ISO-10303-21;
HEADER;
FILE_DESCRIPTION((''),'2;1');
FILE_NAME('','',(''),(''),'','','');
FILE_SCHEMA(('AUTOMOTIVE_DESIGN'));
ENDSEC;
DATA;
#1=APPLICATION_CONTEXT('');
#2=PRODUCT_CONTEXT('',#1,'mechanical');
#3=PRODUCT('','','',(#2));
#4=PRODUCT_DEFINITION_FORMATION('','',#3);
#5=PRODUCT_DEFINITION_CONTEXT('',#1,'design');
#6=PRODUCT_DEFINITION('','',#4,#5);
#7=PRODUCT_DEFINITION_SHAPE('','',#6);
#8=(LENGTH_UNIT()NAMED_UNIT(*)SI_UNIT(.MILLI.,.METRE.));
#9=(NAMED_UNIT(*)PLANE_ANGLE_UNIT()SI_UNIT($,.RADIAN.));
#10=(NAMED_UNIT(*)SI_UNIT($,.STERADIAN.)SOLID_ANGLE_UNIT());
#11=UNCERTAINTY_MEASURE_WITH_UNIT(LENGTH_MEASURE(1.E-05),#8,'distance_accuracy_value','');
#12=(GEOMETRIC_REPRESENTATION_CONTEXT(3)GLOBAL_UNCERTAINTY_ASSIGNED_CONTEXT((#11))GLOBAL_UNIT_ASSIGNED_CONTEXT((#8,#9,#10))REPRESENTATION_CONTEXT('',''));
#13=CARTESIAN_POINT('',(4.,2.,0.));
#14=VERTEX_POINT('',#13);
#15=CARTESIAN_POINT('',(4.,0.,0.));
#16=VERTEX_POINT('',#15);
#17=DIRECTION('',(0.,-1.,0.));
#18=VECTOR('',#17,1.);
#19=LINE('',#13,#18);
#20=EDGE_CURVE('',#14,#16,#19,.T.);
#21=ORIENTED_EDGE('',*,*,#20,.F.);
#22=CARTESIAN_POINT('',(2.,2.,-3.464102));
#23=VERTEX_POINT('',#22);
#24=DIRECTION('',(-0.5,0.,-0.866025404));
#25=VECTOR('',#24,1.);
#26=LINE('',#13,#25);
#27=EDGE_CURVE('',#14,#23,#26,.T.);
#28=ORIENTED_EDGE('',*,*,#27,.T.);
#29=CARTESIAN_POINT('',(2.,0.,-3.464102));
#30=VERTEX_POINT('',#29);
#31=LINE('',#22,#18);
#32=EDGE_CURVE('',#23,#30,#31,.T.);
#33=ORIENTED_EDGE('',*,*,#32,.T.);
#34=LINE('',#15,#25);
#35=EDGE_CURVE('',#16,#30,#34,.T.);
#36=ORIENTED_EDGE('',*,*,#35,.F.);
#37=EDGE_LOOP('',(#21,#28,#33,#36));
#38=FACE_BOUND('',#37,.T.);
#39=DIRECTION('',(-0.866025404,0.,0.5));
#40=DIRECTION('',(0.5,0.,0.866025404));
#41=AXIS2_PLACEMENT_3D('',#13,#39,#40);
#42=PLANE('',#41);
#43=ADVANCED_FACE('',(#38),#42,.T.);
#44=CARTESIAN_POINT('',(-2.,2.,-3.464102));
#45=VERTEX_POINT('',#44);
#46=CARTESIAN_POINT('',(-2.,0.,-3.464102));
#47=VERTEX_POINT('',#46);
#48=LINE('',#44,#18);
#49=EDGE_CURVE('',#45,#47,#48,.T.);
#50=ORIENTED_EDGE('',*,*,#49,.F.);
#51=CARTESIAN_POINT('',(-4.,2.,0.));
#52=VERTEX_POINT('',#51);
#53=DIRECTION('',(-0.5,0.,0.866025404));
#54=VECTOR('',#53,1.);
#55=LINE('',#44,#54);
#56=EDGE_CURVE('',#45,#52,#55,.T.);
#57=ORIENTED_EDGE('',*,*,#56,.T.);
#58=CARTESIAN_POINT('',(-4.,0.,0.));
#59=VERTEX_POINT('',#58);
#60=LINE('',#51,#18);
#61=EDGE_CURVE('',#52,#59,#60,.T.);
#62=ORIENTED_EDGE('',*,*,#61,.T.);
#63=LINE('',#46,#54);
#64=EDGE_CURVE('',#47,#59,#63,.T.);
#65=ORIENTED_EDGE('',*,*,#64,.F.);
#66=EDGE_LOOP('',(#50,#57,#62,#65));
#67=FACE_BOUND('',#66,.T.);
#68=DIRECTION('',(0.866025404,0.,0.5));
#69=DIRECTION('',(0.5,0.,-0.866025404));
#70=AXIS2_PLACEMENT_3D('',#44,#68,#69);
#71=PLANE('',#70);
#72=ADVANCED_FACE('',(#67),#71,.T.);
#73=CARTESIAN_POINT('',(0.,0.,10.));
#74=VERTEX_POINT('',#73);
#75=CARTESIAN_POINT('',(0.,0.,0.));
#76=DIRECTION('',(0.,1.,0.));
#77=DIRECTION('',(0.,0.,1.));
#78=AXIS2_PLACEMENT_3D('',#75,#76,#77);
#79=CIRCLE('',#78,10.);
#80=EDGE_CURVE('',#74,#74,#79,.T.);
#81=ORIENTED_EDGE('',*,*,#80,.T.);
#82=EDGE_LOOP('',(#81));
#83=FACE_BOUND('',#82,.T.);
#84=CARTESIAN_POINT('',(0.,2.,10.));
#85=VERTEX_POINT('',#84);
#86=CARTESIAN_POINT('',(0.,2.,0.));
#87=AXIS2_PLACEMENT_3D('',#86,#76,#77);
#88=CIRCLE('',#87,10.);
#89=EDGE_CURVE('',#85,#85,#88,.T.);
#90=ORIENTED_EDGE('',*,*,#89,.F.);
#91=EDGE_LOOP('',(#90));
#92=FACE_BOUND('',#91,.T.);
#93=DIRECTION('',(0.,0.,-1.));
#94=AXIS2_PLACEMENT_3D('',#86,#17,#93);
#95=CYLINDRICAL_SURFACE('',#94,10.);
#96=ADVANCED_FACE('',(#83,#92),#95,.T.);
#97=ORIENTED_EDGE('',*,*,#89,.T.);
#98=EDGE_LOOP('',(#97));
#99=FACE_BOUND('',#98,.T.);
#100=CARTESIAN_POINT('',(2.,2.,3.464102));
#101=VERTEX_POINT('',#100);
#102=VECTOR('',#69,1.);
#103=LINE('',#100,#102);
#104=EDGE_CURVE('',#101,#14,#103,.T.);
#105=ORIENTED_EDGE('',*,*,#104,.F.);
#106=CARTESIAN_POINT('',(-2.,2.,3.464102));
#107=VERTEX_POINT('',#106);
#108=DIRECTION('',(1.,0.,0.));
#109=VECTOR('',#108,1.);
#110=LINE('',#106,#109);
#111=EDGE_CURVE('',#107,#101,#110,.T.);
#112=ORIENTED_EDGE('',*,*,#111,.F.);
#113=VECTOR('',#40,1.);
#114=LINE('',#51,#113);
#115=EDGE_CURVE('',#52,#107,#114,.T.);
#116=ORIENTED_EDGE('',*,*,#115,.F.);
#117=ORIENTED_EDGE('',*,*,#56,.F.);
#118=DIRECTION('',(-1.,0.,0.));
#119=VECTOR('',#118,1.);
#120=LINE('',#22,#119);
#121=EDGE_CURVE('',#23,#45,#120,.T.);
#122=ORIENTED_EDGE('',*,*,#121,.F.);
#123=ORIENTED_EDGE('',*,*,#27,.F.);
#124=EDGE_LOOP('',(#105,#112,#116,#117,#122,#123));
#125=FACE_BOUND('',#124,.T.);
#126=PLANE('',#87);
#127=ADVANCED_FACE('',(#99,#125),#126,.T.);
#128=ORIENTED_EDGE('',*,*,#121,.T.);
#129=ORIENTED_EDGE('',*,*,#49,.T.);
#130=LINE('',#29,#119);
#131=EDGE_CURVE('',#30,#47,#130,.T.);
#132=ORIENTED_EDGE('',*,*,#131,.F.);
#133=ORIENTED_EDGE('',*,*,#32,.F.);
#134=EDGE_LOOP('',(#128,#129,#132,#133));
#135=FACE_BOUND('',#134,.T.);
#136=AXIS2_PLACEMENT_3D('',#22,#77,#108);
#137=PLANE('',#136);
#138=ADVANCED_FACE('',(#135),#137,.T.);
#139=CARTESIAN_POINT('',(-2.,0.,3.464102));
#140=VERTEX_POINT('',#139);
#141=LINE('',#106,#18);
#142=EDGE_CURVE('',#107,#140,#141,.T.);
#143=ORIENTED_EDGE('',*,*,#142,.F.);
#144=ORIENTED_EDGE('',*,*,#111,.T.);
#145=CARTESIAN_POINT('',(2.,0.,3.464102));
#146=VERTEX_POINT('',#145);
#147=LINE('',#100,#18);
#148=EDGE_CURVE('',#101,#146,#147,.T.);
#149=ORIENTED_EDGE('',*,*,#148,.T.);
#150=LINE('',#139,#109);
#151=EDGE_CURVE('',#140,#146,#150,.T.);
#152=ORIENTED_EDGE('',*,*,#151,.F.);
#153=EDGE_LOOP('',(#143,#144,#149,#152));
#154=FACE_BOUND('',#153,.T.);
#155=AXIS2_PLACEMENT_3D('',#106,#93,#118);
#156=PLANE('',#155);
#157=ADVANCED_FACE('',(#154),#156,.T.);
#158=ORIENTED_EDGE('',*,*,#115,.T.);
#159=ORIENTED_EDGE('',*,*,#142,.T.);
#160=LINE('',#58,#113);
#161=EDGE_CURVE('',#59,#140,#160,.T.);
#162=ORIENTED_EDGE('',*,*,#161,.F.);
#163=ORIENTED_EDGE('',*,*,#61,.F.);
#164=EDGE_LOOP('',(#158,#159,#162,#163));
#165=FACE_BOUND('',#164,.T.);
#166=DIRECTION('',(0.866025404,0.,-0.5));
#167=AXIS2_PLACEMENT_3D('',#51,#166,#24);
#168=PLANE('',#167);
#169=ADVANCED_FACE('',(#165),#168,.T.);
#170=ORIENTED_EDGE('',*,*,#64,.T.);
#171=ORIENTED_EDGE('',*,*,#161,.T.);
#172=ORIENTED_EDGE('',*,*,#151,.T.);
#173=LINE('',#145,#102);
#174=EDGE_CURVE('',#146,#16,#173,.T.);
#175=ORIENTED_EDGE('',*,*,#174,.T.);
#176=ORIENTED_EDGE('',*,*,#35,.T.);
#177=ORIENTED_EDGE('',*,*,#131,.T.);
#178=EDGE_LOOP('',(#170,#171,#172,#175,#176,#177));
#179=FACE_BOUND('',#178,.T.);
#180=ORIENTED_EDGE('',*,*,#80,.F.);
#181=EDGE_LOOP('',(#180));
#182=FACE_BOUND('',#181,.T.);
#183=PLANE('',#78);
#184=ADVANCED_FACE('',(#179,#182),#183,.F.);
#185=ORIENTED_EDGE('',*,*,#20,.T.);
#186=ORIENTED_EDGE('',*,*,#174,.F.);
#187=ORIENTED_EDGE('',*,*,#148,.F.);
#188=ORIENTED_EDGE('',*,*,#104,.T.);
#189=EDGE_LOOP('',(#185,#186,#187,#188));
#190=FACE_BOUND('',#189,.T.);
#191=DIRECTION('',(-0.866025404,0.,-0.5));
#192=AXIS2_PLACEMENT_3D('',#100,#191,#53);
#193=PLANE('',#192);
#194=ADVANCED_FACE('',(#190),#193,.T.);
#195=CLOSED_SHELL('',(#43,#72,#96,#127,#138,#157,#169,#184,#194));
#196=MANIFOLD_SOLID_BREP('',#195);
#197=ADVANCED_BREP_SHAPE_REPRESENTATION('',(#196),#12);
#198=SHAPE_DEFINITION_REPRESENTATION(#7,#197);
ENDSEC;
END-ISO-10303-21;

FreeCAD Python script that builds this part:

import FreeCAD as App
import Part
import Sketcher

V = App.Vector
Q = App.Units.Quantity


def add_polygon(sketch, points):
    """Adds a closed chain of lines whose ends are joined by coincident constraints."""
    first, n = sketch.GeometryCount, len(points)
    for a, b in zip(points, points[1:] + points[:1]):
        sketch.addGeometry(Part.LineSegment(App.Vector(*a, 0), App.Vector(*b, 0)), False)
    for i in range(n):
        sketch.addConstraint(Sketcher.Constraint("Coincident", first + i, 2, first + (i + 1) % n, 1))

doc = App.newDocument("Part")
params = doc.addObject("Spreadsheet::Sheet", "Params")
for row, (alias, value) in enumerate([
    ("sketch1_diameter", "20 mm"),
    ("sketch1_width", "4 mm"),
    ("sketch1_length", "4 mm"),
    ("pad1_length", "2 mm"),
], start=1):
    params.set(f"A{row}", alias)
    params.set(f"B{row}", "=" + value)
    params.setAlias(f"B{row}", alias)

body = doc.addObject("PartDesign::Body", "Body")

# Sketch on XZ plane
sketch1 = body.newObject("Sketcher::SketchObject", "Sketch")
sketch1.AttachmentSupport = (doc.getObject("XZ_Plane"), [""])
sketch1.MapMode = "FlatFace"
sketch1.addGeometry(Part.Circle(V(0, 0, 0), V(0, 0, 1), 10), False)  # 0
add_polygon(sketch1, [(2, -3.5), (4, 0), (2, 3.5), (-2, 3.5), (-4, 0), (-2, -3.5)])  # lines 1-6
sketch1.addConstraint(Sketcher.Constraint("Horizontal", 3))
sketch1.addConstraint(Sketcher.Constraint("Horizontal", 6))
sketch1.addConstraint(Sketcher.Constraint("Coincident", 0, 3, -1, 1))
sketch1.addConstraint(Sketcher.Constraint("Symmetric", 1, 2, 4, 2, -1, 1))
sketch1.addConstraint(Sketcher.Constraint("Symmetric", 2, 2, 5, 2, -1, 1))
sketch1.addConstraint(Sketcher.Constraint("PointOnObject", 1, 2, -1))
sketch1.addConstraint(Sketcher.Constraint("Parallel", 1, 4))
sketch1.addConstraint(Sketcher.Constraint("Vertical", 3, 2, 5, 2))
sketch1.addConstraint(Sketcher.Constraint("Diameter", 0, Q("20 mm")))
sketch1.addConstraint(Sketcher.Constraint("DistanceX", 3, 2, 3, 1, Q("4 mm")))
sketch1.addConstraint(Sketcher.Constraint("Angle", 1, Q("60 deg")))
sketch1.addConstraint(Sketcher.Constraint("Distance", 1, Q("4 mm")))
sketch1.setExpression("Constraints[14]", "Params.sketch1_diameter")
sketch1.setExpression("Constraints[15]", "Params.sketch1_width")
sketch1.setExpression("Constraints[17]", "Params.sketch1_length")
pad1 = body.newObject("PartDesign::Pad", "Pad")
pad1.Profile = sketch1
pad1.setExpression("Length", "Params.pad1_length")
pad1.Reversed = True

doc.recompute()
